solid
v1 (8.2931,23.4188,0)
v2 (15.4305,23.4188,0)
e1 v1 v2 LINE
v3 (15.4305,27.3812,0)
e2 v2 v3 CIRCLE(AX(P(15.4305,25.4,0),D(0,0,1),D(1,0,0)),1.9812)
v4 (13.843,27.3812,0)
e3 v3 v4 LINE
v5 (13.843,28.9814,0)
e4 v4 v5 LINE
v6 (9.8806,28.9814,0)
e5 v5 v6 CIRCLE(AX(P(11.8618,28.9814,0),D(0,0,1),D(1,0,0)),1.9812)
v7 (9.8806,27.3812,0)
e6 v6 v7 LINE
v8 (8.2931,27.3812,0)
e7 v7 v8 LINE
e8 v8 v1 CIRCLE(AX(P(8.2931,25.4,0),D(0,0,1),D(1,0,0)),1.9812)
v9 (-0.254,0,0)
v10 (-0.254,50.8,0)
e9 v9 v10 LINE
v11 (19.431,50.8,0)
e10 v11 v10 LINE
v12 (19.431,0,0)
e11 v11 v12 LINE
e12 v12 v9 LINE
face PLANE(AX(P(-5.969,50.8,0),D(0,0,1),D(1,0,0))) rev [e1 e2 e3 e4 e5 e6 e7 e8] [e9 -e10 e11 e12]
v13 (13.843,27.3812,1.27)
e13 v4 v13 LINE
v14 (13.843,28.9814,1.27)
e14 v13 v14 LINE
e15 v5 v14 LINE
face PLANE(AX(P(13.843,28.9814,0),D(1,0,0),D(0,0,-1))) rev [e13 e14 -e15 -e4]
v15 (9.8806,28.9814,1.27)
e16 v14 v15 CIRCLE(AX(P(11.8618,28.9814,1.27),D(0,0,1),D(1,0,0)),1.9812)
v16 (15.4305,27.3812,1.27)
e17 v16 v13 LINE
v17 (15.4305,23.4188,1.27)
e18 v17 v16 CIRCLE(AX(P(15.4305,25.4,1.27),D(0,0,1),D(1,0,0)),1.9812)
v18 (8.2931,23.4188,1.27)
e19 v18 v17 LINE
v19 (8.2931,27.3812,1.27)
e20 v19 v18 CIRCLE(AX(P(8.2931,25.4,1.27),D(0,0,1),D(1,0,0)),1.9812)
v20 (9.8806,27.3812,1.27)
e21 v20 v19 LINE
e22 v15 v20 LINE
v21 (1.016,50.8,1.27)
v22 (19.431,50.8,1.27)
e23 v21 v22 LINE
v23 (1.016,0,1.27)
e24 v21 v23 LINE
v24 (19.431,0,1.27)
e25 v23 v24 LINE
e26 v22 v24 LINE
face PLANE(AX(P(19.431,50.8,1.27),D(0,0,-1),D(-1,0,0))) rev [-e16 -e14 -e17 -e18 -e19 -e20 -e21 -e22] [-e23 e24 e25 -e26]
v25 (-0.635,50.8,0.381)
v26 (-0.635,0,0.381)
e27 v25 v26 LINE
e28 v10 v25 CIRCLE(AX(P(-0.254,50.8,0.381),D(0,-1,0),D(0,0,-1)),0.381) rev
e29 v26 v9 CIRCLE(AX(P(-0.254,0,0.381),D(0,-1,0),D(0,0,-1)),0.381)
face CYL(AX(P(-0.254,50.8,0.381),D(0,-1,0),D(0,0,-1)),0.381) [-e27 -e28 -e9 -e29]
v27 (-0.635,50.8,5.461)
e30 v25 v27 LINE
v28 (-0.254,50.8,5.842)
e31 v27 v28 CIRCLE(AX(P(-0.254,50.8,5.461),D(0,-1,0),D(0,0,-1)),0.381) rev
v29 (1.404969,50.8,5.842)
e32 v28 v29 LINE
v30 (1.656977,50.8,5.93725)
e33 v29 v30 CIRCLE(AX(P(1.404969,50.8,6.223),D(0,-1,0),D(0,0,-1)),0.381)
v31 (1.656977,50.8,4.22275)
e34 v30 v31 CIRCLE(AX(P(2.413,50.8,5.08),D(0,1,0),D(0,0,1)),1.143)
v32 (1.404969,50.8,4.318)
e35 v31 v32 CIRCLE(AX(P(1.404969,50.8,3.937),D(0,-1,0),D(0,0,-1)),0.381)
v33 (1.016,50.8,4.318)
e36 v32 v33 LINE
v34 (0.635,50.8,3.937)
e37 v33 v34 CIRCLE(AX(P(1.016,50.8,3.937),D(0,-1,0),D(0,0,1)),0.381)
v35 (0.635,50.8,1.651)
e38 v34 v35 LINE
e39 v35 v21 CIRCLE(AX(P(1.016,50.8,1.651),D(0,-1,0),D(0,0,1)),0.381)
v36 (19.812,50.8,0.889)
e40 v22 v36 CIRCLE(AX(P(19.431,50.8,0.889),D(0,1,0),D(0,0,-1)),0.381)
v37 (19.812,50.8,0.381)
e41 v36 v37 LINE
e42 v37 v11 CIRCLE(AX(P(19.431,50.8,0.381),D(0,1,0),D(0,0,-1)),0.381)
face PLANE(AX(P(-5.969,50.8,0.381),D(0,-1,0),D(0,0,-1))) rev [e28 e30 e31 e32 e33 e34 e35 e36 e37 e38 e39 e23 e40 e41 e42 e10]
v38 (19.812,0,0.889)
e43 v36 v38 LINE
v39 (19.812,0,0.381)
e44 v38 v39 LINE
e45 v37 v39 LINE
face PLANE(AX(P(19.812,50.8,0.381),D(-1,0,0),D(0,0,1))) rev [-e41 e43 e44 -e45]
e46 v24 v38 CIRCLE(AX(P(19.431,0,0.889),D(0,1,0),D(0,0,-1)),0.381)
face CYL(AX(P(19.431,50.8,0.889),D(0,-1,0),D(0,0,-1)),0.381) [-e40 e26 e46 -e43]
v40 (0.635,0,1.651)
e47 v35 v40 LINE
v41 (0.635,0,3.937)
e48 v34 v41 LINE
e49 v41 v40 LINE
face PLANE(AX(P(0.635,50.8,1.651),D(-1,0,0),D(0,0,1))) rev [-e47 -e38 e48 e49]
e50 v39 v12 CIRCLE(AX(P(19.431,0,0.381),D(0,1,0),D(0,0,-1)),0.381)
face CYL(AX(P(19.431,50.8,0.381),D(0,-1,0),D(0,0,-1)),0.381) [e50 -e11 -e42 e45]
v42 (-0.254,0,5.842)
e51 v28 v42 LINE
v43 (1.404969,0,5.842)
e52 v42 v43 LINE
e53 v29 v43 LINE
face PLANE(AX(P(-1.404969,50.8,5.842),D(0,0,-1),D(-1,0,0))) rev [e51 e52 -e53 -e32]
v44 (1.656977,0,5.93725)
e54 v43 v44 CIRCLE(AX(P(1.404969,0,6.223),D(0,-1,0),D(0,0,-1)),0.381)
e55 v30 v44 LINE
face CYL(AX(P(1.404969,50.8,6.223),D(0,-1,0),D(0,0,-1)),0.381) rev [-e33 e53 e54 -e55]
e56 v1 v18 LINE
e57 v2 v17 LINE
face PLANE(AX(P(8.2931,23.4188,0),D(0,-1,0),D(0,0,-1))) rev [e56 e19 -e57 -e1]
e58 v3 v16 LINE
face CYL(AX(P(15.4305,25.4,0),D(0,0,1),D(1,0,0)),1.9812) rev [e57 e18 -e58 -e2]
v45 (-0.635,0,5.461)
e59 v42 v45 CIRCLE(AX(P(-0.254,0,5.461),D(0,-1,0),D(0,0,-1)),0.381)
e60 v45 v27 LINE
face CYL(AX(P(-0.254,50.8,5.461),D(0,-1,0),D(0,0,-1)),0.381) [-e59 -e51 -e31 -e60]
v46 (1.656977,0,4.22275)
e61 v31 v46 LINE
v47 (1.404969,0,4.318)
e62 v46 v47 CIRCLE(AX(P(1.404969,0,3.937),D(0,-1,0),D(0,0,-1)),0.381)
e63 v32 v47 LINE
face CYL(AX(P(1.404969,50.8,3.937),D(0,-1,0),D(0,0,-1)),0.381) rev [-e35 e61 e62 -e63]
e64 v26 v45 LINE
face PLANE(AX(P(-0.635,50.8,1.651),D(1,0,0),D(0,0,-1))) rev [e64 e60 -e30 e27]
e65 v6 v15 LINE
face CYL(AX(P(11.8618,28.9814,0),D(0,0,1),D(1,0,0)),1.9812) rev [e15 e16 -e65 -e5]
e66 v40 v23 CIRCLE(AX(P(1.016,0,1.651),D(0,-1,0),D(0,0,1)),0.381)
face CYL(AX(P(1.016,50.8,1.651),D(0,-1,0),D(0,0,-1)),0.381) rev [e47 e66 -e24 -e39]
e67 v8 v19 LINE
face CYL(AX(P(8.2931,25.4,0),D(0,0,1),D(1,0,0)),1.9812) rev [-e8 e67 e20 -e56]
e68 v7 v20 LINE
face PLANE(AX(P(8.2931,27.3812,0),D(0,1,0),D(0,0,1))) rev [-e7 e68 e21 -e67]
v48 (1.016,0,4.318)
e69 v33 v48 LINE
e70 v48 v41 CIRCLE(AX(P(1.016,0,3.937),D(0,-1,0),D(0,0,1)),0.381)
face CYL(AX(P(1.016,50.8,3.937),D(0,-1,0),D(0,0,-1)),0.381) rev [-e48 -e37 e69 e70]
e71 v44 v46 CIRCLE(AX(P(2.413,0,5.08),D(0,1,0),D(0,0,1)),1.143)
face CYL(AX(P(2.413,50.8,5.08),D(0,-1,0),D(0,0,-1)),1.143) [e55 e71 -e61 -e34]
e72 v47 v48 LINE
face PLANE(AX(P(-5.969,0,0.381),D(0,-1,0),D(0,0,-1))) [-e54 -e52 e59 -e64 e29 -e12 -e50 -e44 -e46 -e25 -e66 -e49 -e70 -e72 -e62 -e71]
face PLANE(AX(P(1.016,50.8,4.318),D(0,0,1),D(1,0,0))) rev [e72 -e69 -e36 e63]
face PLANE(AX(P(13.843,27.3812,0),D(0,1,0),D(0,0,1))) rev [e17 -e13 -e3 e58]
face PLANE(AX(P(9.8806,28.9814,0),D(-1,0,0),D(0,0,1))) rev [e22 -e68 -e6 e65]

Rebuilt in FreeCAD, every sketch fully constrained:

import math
import FreeCAD as App
import Part
import Sketcher
from FreeCAD import Vector
Q = App.Units.Quantity


def edges_at(feature, points):
    """Names of the edges that pass closest to the given points."""
    edges = feature.Shape.Edges
    near = lambda p: min(range(len(edges)), key=lambda i: edges[i].distToShape(Part.Vertex(*p))[0])
    return sorted({f"Edge{near(p) + 1}" for p in points})

doc = App.newDocument("Part")
body = doc.addObject("PartDesign::Body", "Body")

# Sketch on XZ plane
sketch1 = body.newObject("Sketcher::SketchObject", "Sketch")
sketch1.AttachmentSupport = (doc.getObject("XZ_Plane"), [""])
sketch1.MapMode = "FlatFace"
sketch1.addGeometry(Part.LineSegment(Vector(19.43, 0, 0), Vector(-5.97, 0, 0)), False)
sketch1.addGeometry(Part.ArcOfCircle(Part.Circle(Vector(-5.97, 0.38, 0), Vector(0, 0, 1), 0.38), math.radians(180), math.radians(270)), False)
sketch1.addGeometry(Part.LineSegment(Vector(-6.35, 0.38, 0), Vector(-6.35, 0.89, 0)), False)
sketch1.addGeometry(Part.ArcOfCircle(Part.Circle(Vector(-5.97, 0.89, 0), Vector(0, 0, 1), 0.38), math.radians(90), math.radians(180)), False)
sketch1.addGeometry(Part.LineSegment(Vector(-5.97, 1.27, 0), Vector(-1.02, 1.27, 0)), False)
sketch1.addGeometry(Part.ArcOfCircle(Part.Circle(Vector(-1.02, 1.65, 0), Vector(0, 0, 1), 0.38), math.radians(-90), math.radians(0)), False)
sketch1.addGeometry(Part.LineSegment(Vector(-0.64, 1.65, 0), Vector(-0.64, 3.94, 0)), False)
sketch1.addGeometry(Part.ArcOfCircle(Part.Circle(Vector(-1.02, 3.94, 0), Vector(0, 0, 1), 0.38), math.radians(0), math.radians(90)), False)
sketch1.addGeometry(Part.LineSegment(Vector(-1.02, 4.32, 0), Vector(-1.4, 4.32, 0)), False)
sketch1.addGeometry(Part.ArcOfCircle(Part.Circle(Vector(-1.4, 3.94, 0), Vector(0, 0, 1), 0.38), math.radians(90), math.radians(131)), False)
sketch1.addGeometry(Part.ArcOfCircle(Part.Circle(Vector(-2.41, 5.08, 0), Vector(0, 0, 1), 1.14), math.radians(49), math.radians(311)), False)
sketch1.addGeometry(Part.ArcOfCircle(Part.Circle(Vector(-1.4, 6.22, 0), Vector(0, 0, 1), 0.38), math.radians(-131), math.radians(-90)), False)
sketch1.addGeometry(Part.LineSegment(Vector(-1.4, 5.84, 0), Vector(1.4, 5.84, 0)), False)
sketch1.addGeometry(Part.ArcOfCircle(Part.Circle(Vector(1.4, 6.22, 0), Vector(0, 0, 1), 0.38), math.radians(-90), math.radians(-49)), False)
sketch1.addGeometry(Part.ArcOfCircle(Part.Circle(Vector(2.41, 5.08, 0), Vector(0, 0, 1), 1.14), math.radians(-131), math.radians(131)), False)
sketch1.addGeometry(Part.ArcOfCircle(Part.Circle(Vector(1.4, 3.94, 0), Vector(0, 0, 1), 0.38), math.radians(49), math.radians(90)), False)
sketch1.addGeometry(Part.LineSegment(Vector(1.4, 4.32, 0), Vector(1.02, 4.32, 0)), False)
sketch1.addGeometry(Part.ArcOfCircle(Part.Circle(Vector(1.02, 3.94, 0), Vector(0, 0, 1), 0.38), math.radians(90), math.radians(180)), False)
sketch1.addGeometry(Part.LineSegment(Vector(0.64, 3.94, 0), Vector(0.64, 1.65, 0)), False)
sketch1.addGeometry(Part.ArcOfCircle(Part.Circle(Vector(1.02, 1.65, 0), Vector(0, 0, 1), 0.38), math.radians(180), math.radians(270)), False)
sketch1.addGeometry(Part.LineSegment(Vector(1.02, 1.27, 0), Vector(19.43, 1.27, 0)), False)
sketch1.addGeometry(Part.ArcOfCircle(Part.Circle(Vector(19.43, 0.89, 0), Vector(0, 0, 1), 0.38), math.radians(0), math.radians(90)), False)
sketch1.addGeometry(Part.LineSegment(Vector(19.81, 0.89, 0), Vector(19.81, 0.38, 0)), False)
sketch1.addGeometry(Part.ArcOfCircle(Part.Circle(Vector(19.43, 0.38, 0), Vector(0, 0, 1), 0.38), math.radians(-90), math.radians(0)), False)
sketch1.addConstraint(Sketcher.Constraint("Tangent", 0, 2, 1, 2))
sketch1.addConstraint(Sketcher.Constraint("Tangent", 1, 1, 2, 1))
sketch1.addConstraint(Sketcher.Constraint("Tangent", 2, 2, 3, 2))
sketch1.addConstraint(Sketcher.Constraint("Tangent", 3, 1, 4, 1))
sketch1.addConstraint(Sketcher.Constraint("Tangent", 4, 2, 5, 1))
sketch1.addConstraint(Sketcher.Constraint("Tangent", 5, 2, 6, 1))
sketch1.addConstraint(Sketcher.Constraint("Tangent", 6, 2, 7, 1))
sketch1.addConstraint(Sketcher.Constraint("Tangent", 7, 2, 8, 1))
sketch1.addConstraint(Sketcher.Constraint("Tangent", 8, 2, 9, 1))
sketch1.addConstraint(Sketcher.Constraint("Tangent", 9, 2, 10, 2))
sketch1.addConstraint(Sketcher.Constraint("Tangent", 10, 1, 11, 1))
sketch1.addConstraint(Sketcher.Constraint("Tangent", 11, 2, 12, 1))
sketch1.addConstraint(Sketcher.Constraint("Tangent", 12, 2, 13, 1))
sketch1.addConstraint(Sketcher.Constraint("Tangent", 13, 2, 14, 2))
sketch1.addConstraint(Sketcher.Constraint("Tangent", 14, 1, 15, 1))
sketch1.addConstraint(Sketcher.Constraint("Tangent", 15, 2, 16, 1))
sketch1.addConstraint(Sketcher.Constraint("Tangent", 16, 2, 17, 1))
sketch1.addConstraint(Sketcher.Constraint("Tangent", 17, 2, 18, 1))
sketch1.addConstraint(Sketcher.Constraint("Tangent", 18, 2, 19, 1))
sketch1.addConstraint(Sketcher.Constraint("Tangent", 19, 2, 20, 1))
sketch1.addConstraint(Sketcher.Constraint("Tangent", 20, 2, 21, 2))
sketch1.addConstraint(Sketcher.Constraint("Tangent", 21, 1, 22, 1))
sketch1.addConstraint(Sketcher.Constraint("Tangent", 22, 2, 23, 2))
sketch1.addConstraint(Sketcher.Constraint("Tangent", 23, 1, 0, 1))
sketch1.addConstraint(Sketcher.Constraint("Horizontal", 0))
sketch1.addConstraint(Sketcher.Constraint("Vertical", 2))
sketch1.addConstraint(Sketcher.Constraint("Horizontal", 4))
sketch1.addConstraint(Sketcher.Constraint("Vertical", 6))
sketch1.addConstraint(Sketcher.Constraint("Horizontal", 8))
sketch1.addConstraint(Sketcher.Constraint("Horizontal", 12))
sketch1.addConstraint(Sketcher.Constraint("Horizontal", 16))
sketch1.addConstraint(Sketcher.Constraint("Vertical", 18))
sketch1.addConstraint(Sketcher.Constraint("Horizontal", 20))
sketch1.addConstraint(Sketcher.Constraint("Vertical", 22))
sketch1.addConstraint(Sketcher.Constraint("Equal", 1, 3))
sketch1.addConstraint(Sketcher.Constraint("Equal", 3, 5))
sketch1.addConstraint(Sketcher.Constraint("Equal", 5, 7))
sketch1.addConstraint(Sketcher.Constraint("Equal", 7, 9))
sketch1.addConstraint(Sketcher.Constraint("Equal", 9, 11))
sketch1.addConstraint(Sketcher.Constraint("Equal", 11, 13))
sketch1.addConstraint(Sketcher.Constraint("Equal", 10, 14))
sketch1.addConstraint(Sketcher.Constraint("Equal", 13, 15))
sketch1.addConstraint(Sketcher.Constraint("Equal", 15, 17))
sketch1.addConstraint(Sketcher.Constraint("Equal", 17, 19))
sketch1.addConstraint(Sketcher.Constraint("Equal", 19, 21))
sketch1.addConstraint(Sketcher.Constraint("Equal", 21, 23))
sketch1.addConstraint(Sketcher.Constraint("Symmetric", 10, 3, 14, 3, -2))
sketch1.addConstraint(Sketcher.Constraint("Symmetric", 7, 3, 17, 3, -2))
sketch1.addConstraint(Sketcher.Constraint("PointOnObject", 0, 2, -1))
sketch1.addConstraint(Sketcher.Constraint("Horizontal", 5, 3, 19, 3))
sketch1.addConstraint(Sketcher.Constraint("Vertical", 9, 3, 11, 3))
sketch1.addConstraint(Sketcher.Constraint("DistanceX", 0, 2, 0, 1, Q("1 in")))
sketch1.addConstraint(Sketcher.Constraint("Radius", 1, Q("0.015 in")))
sketch1.addConstraint(Sketcher.Constraint("Radius", 10, Q("0.045 in")))
sketch1.addConstraint(Sketcher.Constraint("DistanceY", 2, 1, 2, 2, Q("0.02 in")))
sketch1.addConstraint(Sketcher.Constraint("DistanceY", 6, 1, 6, 2, Q("0.09 in")))
sketch1.addConstraint(Sketcher.Constraint("DistanceY", -1, 1, 10, 3, Q("0.2 in")))
sketch1.addConstraint(Sketcher.Constraint("DistanceX", 4, 1, 4, 2, Q("0.195 in")))
sketch1.addConstraint(Sketcher.Constraint("DistanceX", 20, 1, 20, 2, Q("0.725 in")))
sketch1.addConstraint(Sketcher.Constraint("DistanceX", 3, 3, 10, 3, Q("0.14 in")))
pad1 = body.newObject("PartDesign::Pad", "Pad")
pad1.Profile = sketch1
pad1.Length = Q("2 in")
pad1.Reversed = True

# Sketch on XZ plane
sketch2 = body.newObject("Sketcher::SketchObject", "Sketch001")
sketch2.AttachmentSupport = (doc.getObject("XZ_Plane"), [""])
sketch2.MapMode = "FlatFace"
sketch2.addGeometry(Part.LineSegment(Vector(-6, 6, 0), Vector(-6, 0, 0)), False)
sketch2.addGeometry(Part.LineSegment(Vector(-6, 0, 0), Vector(-1, 0, 0)), False)
sketch2.addGeometry(Part.LineSegment(Vector(-1, 0, 0), Vector(-1, 6, 0)), False)
sketch2.addGeometry(Part.LineSegment(Vector(-1, 6, 0), Vector(-6, 6, 0)), False)
sketch2.addConstraint(Sketcher.Constraint("Coincident", 0, 2, 1, 1))
sketch2.addConstraint(Sketcher.Constraint("Coincident", 1, 2, 2, 1))
sketch2.addConstraint(Sketcher.Constraint("Coincident", 2, 2, 3, 1))
sketch2.addConstraint(Sketcher.Constraint("Coincident", 3, 2, 0, 1))
sketch2.addConstraint(Sketcher.Constraint("Vertical", 0))
sketch2.addConstraint(Sketcher.Constraint("Horizontal", 1))
sketch2.addConstraint(Sketcher.Constraint("Vertical", 2))
sketch2.addConstraint(Sketcher.Constraint("Horizontal", 3))
sketch2.addConstraint(Sketcher.Constraint("PointOnObject", 0, 2, -1))
sketch2.addConstraint(Sketcher.Constraint("DistanceX", 1, 1, 1, 2, Q("0.225 in")))
sketch2.addConstraint(Sketcher.Constraint("DistanceY", 0, 2, 0, 1, Q("0.245 in")))
sketch2.addConstraint(Sketcher.Constraint("DistanceX", 0, 2, -1, 1, Q("0.25 in")))
pocket1 = body.newObject("PartDesign::Pocket", "Pocket")
pocket1.Profile = sketch2
pocket1.Type = "ThroughAll"
doc.recompute()

fillet = body.newObject("PartDesign::Fillet", "Fillet")
fillet.Base = (pocket1, edges_at(pocket1, [(-0.635, 25.4, 5.842), (-0.635, 25.4, 0)]))
fillet.Radius = Q("0.015 in")

# Sketch on XY plane
sketch3 = body.newObject("Sketcher::SketchObject", "Sketch002")
sketch3.AttachmentSupport = (doc.getObject("XY_Plane"), [""])
sketch3.MapMode = "FlatFace"
sketch3.AttachmentOffset = App.Placement(Vector(0, 0, 0.05 * 25.4), App.Rotation())
sketch3.addGeometry(Part.LineSegment(Vector(9.9, 27.4, 0), Vector(8.3, 27.4, 0)), False)
sketch3.addGeometry(Part.ArcOfCircle(Part.Circle(Vector(8.3, 25.4, 0), Vector(0, 0, 1), 2), math.radians(90), math.radians(270)), False)
sketch3.addGeometry(Part.LineSegment(Vector(8.3, 23.4, 0), Vector(15.4, 23.4, 0)), False)
sketch3.addGeometry(Part.ArcOfCircle(Part.Circle(Vector(15.4, 25.4, 0), Vector(0, 0, 1), 2), math.radians(-90), math.radians(90)), False)
sketch3.addGeometry(Part.LineSegment(Vector(15.4, 27.4, 0), Vector(13.8, 27.4, 0)), False)
sketch3.addGeometry(Part.LineSegment(Vector(13.8, 27.4, 0), Vector(13.8, 29, 0)), False)
sketch3.addGeometry(Part.ArcOfCircle(Part.Circle(Vector(11.9, 29, 0), Vector(0, 0, 1), 2), math.radians(0), math.radians(180)), False)
sketch3.addGeometry(Part.LineSegment(Vector(9.9, 29, 0), Vector(9.9, 27.4, 0)), False)
sketch3.addConstraint(Sketcher.Constraint("Tangent", 0, 2, 1, 1))
sketch3.addConstraint(Sketcher.Constraint("Tangent", 1, 2, 2, 1))
sketch3.addConstraint(Sketcher.Constraint("Tangent", 2, 2, 3, 1))
sketch3.addConstraint(Sketcher.Constraint("Tangent", 3, 2, 4, 1))
sketch3.addConstraint(Sketcher.Constraint("Coincident", 4, 2, 5, 1))
sketch3.addConstraint(Sketcher.Constraint("Tangent", 5, 2, 6, 1))
sketch3.addConstraint(Sketcher.Constraint("Tangent", 6, 2, 7, 1))
sketch3.addConstraint(Sketcher.Constraint("Coincident", 7, 2, 0, 1))
sketch3.addConstraint(Sketcher.Constraint("Horizontal", 0))
sketch3.addConstraint(Sketcher.Constraint("Horizontal", 2))
sketch3.addConstraint(Sketcher.Constraint("Horizontal", 4))
sketch3.addConstraint(Sketcher.Constraint("Vertical", 5))
sketch3.addConstraint(Sketcher.Constraint("Vertical", 7))
sketch3.addConstraint(Sketcher.Constraint("Equal", 1, 3))
sketch3.addConstraint(Sketcher.Constraint("Equal", 3, 6))
sketch3.addConstraint(Sketcher.Constraint("Equal", 0, 4))
sketch3.addConstraint(Sketcher.Constraint("DistanceY", -1, 1, 1, 3, Q("1 in")))
sketch3.addConstraint(Sketcher.Constraint("Radius", 1, Q("0.078 in")))
sketch3.addConstraint(Sketcher.Constraint("DistanceX", 0, 2, 0, 1, Q("0.0625 in")))
sketch3.addConstraint(Sketcher.Constraint("DistanceY", 5, 1, 5, 2, Q("0.063 in")))
sketch3.addConstraint(Sketcher.Constraint("DistanceX", -1, 1, 6, 3, Q("0.467 in")))
pocket2 = body.newObject("PartDesign::Pocket", "Pocket001")
pocket2.Profile = sketch3
pocket2.Type = "ThroughAll"

doc.recompute()
